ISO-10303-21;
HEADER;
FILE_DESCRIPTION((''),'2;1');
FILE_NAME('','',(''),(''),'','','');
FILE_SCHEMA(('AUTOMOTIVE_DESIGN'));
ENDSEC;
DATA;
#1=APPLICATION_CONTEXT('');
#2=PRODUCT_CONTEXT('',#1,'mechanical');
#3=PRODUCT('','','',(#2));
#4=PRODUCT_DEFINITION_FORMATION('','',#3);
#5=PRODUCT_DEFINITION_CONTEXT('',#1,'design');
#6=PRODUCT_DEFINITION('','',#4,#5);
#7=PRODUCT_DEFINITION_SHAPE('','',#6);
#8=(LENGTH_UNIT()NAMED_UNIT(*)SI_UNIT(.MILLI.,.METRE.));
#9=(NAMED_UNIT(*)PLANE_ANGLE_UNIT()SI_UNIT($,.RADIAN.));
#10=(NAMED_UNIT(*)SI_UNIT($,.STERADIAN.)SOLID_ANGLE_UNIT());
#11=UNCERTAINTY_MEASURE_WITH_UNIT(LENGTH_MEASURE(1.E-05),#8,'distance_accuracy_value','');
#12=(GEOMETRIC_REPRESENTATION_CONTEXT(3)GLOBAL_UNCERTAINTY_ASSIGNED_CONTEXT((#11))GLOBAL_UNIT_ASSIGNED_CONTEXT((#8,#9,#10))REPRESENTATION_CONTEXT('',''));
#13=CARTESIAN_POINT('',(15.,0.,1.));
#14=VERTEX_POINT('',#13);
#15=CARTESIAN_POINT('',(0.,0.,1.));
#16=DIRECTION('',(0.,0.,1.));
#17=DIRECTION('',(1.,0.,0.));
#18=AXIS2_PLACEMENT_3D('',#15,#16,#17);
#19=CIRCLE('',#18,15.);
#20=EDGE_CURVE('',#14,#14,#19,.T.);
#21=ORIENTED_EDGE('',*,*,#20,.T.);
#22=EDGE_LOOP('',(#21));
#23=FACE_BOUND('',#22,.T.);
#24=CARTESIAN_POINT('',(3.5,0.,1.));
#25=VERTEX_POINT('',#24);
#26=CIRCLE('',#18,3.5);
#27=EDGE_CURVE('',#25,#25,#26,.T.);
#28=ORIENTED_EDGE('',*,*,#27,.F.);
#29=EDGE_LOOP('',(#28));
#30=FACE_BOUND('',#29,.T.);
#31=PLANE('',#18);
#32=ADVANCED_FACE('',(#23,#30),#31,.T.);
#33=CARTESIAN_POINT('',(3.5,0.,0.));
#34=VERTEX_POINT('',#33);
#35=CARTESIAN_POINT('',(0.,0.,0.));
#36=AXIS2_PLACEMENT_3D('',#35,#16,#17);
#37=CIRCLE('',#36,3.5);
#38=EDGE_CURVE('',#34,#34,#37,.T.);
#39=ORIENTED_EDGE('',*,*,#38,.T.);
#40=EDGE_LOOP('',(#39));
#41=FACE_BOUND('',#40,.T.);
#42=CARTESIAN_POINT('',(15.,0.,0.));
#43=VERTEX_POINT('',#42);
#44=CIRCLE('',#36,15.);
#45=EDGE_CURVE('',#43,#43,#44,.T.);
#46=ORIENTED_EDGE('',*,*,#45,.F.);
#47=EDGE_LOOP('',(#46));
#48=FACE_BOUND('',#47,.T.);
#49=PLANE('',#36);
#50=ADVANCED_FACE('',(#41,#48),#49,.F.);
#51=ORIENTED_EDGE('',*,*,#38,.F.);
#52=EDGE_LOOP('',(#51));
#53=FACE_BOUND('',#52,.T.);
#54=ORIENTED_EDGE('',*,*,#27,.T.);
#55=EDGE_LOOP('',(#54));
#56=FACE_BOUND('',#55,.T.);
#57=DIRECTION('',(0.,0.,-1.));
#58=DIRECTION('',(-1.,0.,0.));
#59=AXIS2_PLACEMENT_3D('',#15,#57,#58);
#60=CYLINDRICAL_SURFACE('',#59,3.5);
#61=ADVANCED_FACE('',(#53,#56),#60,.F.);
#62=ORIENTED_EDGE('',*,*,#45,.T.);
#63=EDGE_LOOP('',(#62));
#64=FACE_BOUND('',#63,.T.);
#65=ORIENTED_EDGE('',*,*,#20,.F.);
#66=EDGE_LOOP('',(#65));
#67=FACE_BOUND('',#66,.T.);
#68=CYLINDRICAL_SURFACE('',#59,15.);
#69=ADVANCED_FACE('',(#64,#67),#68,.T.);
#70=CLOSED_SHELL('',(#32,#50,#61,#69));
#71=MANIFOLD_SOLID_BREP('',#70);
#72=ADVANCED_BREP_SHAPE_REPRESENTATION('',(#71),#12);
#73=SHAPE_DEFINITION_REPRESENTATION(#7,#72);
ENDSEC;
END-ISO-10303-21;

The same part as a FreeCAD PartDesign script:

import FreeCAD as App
import Part
import Sketcher
Q = App.Units.Quantity

doc = App.newDocument("Part")
params = doc.addObject("Spreadsheet::Sheet", "Params")
for row, (alias, value) in enumerate([
    ("sketch1_diameter", "30 mm"),
    ("sketch1_diameter2", "7 mm"),
    ("pad1_length", "1 mm"),
], start=1):
    params.set(f"A{row}", alias)
    params.set(f"B{row}", "=" + value)
    params.setAlias(f"B{row}", alias)

body = doc.addObject("PartDesign::Body", "Body")

# Sketch on XY plane
sketch1 = body.newObject("Sketcher::SketchObject", "Sketch")
sketch1.AttachmentSupport = (doc.getObject("XY_Plane"), [""])
sketch1.MapMode = "FlatFace"
sketch1.addGeometry(Part.Circle(App.Vector(0, 0, 0), App.Vector(0, 0, 1), 15), False)
sketch1.addGeometry(Part.Circle(App.Vector(0, 0, 0), App.Vector(0, 0, 1), 3.5), False)
sketch1.addConstraint(Sketcher.Constraint("Coincident", 0, 3, -1, 1))
sketch1.addConstraint(Sketcher.Constraint("Coincident", 1, 3, -1, 1))
sketch1.addConstraint(Sketcher.Constraint("Diameter", 0, Q("30 mm")))
sketch1.addConstraint(Sketcher.Constraint("Diameter", 1, Q("7 mm")))
sketch1.setExpression("Constraints[2]", "Params.sketch1_diameter")
sketch1.setExpression("Constraints[3]", "Params.sketch1_diameter2")
pad1 = body.newObject("PartDesign::Pad", "Pad")
pad1.Profile = sketch1
pad1.setExpression("Length", "Params.pad1_length")

doc.recompute()
